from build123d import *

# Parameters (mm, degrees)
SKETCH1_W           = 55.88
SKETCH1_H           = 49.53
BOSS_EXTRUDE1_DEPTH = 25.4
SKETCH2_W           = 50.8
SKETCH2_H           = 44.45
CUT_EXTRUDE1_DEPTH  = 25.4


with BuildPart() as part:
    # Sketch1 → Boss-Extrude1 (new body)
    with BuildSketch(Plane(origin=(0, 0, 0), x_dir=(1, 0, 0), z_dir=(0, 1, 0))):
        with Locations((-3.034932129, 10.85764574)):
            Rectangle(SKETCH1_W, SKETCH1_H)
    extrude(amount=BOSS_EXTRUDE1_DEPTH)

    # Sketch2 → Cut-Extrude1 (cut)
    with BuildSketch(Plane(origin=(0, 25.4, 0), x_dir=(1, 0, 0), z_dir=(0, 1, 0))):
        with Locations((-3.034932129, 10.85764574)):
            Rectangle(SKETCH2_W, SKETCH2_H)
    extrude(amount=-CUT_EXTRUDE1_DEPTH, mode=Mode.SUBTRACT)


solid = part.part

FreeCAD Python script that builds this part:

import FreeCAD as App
import Part
import Sketcher

V = App.Vector
Q = App.Units.Quantity


def add_polygon(sketch, points):
    """Adds a closed chain of lines whose ends are joined by coincident constraints."""
    first, n = sketch.GeometryCount, len(points)
    for a, b in zip(points, points[1:] + points[:1]):
        sketch.addGeometry(Part.LineSegment(App.Vector(*a, 0), App.Vector(*b, 0)), False)
    for i in range(n):
        sketch.addConstraint(Sketcher.Constraint("Coincident", first + i, 2, first + (i + 1) % n, 1))

doc = App.newDocument("Part")
body = doc.addObject("PartDesign::Body", "Body")

sketch1 = body.newObject("Sketcher::SketchObject", "Sketch")
sketch1.AttachmentSupport = (doc.getObject("XZ_Plane"), [""])
sketch1.MapMode = "FlatFace"
add_polygon(sketch1, [(-31, -36), (-31, 14), (25, 14), (25, -36)])
sketch1.addConstraint([
    Sketcher.Constraint("Vertical", 0),
    Sketcher.Constraint("Horizontal", 1),
    Sketcher.Constraint("Vertical", 2),
    Sketcher.Constraint("Horizontal", 3),
    Sketcher.Constraint("DistanceX", 1, 1, 1, 2, Q("2.2 in")),
    Sketcher.Constraint("DistanceY", 0, 1, 0, 2, Q("1.95 in")),
    Sketcher.Constraint("DistanceX", 0, 2, -1, 1, 30.974932),
    Sketcher.Constraint("DistanceY", -1, 1, 0, 2, 13.907354),
])
pad1 = body.newObject("PartDesign::Pad", "Pad")
pad1.Profile = sketch1
pad1.Length = Q("1 in")
pad1.Reversed = True

sketch2 = body.newObject("Sketcher::SketchObject", "Sketch001")
sketch2.AttachmentSupport = (doc.getObject("XZ_Plane"), [""])
sketch2.MapMode = "FlatFace"
sketch2.AttachmentOffset = App.Placement(V(0, 0, -1 * 25.4), App.Rotation())
add_polygon(sketch2, [(-28, -33), (-28, 11), (22, 11), (22, -33)])
sketch2.addConstraint([
    Sketcher.Constraint("Vertical", 0),
    Sketcher.Constraint("Horizontal", 1),
    Sketcher.Constraint("Vertical", 2),
    Sketcher.Constraint("Horizontal", 3),
    Sketcher.Constraint("DistanceX", 1, 1, 1, 2, Q("2 in")),
    Sketcher.Constraint("DistanceY", 0, 1, 0, 2, Q("1.75 in")),
    Sketcher.Constraint("DistanceX", 0, 2, -1, 1, 28.434932),
    Sketcher.Constraint("DistanceY", -1, 1, 0, 2, 11.367354),
])
pocket1 = body.newObject("PartDesign::Pocket", "Pocket")
pocket1.Profile = sketch2
pocket1.Length = Q("1 in")
pocket1.Reversed = True

doc.recompute()
